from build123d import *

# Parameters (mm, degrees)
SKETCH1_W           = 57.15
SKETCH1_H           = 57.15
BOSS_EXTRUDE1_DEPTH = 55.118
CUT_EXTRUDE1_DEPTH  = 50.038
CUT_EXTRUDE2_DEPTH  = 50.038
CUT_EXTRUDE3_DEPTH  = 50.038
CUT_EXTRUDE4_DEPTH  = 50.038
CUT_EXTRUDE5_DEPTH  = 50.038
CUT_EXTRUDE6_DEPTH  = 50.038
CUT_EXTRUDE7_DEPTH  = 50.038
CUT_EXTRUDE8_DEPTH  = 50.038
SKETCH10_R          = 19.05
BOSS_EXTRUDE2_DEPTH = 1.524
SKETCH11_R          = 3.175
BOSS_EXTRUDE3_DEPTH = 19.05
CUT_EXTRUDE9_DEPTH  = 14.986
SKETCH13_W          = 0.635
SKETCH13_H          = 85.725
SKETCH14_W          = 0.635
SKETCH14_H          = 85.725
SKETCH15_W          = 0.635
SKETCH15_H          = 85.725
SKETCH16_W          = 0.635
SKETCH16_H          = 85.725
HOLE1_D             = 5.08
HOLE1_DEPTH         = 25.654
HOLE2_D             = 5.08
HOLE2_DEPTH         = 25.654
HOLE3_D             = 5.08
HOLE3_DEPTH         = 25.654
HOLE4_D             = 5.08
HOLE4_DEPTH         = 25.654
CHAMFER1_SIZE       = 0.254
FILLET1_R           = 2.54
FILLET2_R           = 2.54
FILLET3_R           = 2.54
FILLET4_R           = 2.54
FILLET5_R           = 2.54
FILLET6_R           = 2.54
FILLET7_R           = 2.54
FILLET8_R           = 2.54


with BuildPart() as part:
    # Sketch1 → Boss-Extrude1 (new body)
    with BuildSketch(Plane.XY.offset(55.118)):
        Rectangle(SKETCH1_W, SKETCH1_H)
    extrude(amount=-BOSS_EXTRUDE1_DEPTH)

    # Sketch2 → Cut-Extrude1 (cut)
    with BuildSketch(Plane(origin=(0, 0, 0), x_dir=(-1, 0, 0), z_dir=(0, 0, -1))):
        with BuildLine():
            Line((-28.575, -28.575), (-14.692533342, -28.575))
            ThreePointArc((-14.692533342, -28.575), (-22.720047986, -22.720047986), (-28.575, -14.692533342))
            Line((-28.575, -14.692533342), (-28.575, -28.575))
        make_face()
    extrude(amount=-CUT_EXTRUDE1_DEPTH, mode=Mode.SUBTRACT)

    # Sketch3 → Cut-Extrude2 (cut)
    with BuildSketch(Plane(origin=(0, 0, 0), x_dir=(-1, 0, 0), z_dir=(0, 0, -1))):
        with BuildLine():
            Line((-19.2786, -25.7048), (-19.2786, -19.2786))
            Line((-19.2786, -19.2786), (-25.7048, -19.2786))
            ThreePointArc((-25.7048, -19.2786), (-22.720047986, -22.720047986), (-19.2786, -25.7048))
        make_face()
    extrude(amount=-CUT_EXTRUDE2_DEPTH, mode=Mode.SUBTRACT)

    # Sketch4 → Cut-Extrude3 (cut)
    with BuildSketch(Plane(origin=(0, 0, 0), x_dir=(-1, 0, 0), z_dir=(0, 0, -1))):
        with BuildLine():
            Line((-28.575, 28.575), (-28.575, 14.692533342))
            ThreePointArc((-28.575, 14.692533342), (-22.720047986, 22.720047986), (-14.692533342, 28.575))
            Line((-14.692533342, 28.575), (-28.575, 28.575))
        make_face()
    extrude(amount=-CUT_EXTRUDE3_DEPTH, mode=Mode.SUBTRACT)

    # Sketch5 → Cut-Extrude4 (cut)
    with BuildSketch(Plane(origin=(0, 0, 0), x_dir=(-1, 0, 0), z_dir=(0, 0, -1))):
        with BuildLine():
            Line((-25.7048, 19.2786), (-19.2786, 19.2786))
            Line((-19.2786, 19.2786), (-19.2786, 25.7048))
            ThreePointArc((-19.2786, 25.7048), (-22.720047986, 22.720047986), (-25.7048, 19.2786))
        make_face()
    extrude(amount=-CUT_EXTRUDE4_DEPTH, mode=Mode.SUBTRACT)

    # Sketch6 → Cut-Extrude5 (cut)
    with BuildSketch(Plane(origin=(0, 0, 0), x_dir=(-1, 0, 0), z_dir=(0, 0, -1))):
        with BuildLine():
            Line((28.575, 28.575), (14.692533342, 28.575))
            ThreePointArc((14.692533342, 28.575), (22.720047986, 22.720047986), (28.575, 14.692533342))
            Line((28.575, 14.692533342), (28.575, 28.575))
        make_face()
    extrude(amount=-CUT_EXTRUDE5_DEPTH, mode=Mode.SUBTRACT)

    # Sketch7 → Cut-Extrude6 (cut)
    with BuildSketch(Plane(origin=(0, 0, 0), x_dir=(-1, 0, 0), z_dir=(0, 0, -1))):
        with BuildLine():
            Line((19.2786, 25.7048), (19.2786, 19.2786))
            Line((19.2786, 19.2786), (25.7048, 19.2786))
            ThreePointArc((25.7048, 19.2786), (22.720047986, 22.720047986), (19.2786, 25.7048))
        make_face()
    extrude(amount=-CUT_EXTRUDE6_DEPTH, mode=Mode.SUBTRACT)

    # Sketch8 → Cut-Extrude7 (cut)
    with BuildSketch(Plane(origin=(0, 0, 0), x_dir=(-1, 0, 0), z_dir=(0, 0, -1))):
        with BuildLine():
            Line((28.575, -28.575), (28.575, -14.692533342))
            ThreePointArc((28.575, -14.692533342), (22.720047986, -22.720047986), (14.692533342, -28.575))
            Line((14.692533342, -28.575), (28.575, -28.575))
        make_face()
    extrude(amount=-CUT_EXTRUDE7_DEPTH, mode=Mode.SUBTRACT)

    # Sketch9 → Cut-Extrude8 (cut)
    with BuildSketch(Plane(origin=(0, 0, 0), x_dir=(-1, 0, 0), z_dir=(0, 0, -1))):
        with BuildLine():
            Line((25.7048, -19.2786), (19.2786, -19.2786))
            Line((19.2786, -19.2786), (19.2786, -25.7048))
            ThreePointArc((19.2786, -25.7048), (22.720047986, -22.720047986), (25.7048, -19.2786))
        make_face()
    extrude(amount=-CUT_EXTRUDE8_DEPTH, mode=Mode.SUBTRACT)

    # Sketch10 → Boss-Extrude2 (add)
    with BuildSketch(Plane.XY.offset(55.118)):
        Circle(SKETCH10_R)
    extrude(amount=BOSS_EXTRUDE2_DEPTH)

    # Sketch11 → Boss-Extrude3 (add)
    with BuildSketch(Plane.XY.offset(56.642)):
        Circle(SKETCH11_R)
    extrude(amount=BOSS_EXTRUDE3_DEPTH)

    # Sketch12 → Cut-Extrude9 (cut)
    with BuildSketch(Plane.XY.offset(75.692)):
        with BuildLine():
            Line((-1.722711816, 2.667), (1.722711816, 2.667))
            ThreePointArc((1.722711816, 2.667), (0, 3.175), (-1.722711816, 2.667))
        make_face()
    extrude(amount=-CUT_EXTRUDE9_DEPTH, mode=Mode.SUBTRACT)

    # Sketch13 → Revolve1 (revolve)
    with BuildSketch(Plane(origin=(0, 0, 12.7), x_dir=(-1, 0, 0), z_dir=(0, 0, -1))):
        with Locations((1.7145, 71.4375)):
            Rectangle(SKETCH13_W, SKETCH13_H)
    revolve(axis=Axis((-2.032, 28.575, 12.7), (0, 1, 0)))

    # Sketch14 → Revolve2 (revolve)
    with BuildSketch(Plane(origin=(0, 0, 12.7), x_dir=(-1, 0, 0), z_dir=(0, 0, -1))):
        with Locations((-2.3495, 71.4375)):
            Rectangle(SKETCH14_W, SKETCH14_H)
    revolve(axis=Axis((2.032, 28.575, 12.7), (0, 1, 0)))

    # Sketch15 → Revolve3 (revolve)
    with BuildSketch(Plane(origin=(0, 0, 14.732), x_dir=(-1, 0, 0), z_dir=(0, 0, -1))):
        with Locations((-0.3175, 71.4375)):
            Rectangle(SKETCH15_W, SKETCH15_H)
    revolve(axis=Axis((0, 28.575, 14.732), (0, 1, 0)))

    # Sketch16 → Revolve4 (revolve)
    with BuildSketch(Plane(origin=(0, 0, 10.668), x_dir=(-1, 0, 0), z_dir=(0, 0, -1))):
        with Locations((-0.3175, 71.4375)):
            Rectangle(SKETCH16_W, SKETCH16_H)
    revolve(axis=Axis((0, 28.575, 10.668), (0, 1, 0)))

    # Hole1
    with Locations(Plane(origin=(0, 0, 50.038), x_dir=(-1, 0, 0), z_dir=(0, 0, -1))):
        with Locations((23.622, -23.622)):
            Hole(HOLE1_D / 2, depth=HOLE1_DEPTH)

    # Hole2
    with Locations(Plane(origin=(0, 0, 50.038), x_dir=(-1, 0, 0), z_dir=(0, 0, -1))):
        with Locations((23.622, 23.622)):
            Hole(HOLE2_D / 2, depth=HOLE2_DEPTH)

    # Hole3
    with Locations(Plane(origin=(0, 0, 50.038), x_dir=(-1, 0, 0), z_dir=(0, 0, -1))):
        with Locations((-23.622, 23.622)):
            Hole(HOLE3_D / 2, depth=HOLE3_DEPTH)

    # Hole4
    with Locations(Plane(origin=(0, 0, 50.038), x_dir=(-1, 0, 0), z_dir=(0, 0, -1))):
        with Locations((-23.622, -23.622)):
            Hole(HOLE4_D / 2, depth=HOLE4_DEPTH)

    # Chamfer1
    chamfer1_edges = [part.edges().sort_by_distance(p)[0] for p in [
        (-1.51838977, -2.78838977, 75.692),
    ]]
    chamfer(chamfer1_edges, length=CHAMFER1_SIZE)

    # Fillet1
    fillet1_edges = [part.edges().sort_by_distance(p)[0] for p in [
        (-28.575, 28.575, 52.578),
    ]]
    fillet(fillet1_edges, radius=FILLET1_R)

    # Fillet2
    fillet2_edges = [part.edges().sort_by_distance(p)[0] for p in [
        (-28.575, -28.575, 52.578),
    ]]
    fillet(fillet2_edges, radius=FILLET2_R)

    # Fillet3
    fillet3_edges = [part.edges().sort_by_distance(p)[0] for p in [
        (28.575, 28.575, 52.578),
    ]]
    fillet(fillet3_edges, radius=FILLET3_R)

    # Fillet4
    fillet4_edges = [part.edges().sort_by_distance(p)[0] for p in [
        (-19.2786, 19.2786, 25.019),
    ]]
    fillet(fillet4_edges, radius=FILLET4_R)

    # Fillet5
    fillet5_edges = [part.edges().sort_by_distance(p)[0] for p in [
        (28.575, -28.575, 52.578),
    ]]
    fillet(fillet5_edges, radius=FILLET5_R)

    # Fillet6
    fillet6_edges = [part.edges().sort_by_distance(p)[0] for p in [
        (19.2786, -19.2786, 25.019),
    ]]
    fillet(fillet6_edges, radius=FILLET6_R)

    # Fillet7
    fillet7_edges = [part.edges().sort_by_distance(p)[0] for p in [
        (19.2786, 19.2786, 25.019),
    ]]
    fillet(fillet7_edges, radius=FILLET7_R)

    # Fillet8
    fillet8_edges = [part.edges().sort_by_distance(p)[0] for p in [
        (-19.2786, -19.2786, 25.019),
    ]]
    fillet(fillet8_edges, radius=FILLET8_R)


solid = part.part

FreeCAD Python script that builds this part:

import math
import FreeCAD as App
import Part
import Sketcher
Q = App.Units.Quantity


def edges_at(feature, points):
    """Names of the edges that pass closest to the given points."""
    edges = feature.Shape.Edges
    near = lambda p: min(range(len(edges)), key=lambda i: edges[i].distToShape(Part.Vertex(*p))[0])
    return sorted({f"Edge{near(p) + 1}" for p in points})


def add_polygon(sketch, points):
    """Adds a closed chain of lines whose ends are joined by coincident constraints."""
    first, n = sketch.GeometryCount, len(points)
    for a, b in zip(points, points[1:] + points[:1]):
        sketch.addGeometry(Part.LineSegment(App.Vector(*a, 0), App.Vector(*b, 0)), False)
    for i in range(n):
        sketch.addConstraint(Sketcher.Constraint("Coincident", first + i, 2, first + (i + 1) % n, 1))

doc = App.newDocument("Part")
body = doc.addObject("PartDesign::Body", "Body")

# Sketch on XY plane
sketch1 = doc.addObject("Sketcher::SketchObject", "Sketch")
body.addObject(sketch1)
sketch1.AttachmentSupport = (doc.XY_Plane, [""])
sketch1.MapMode = "FlatFace"
sketch1.AttachmentOffset = App.Placement(App.Vector(0, 0, 2.17 * 25.4), App.Rotation())
add_polygon(sketch1, [(-29, 29), (-29, -29), (29, -29), (29, 29)])  # lines 0-3
sketch1.addConstraint([
    Sketcher.Constraint("Vertical", 0),
    Sketcher.Constraint("Horizontal", 1),
    Sketcher.Constraint("Vertical", 2),
    Sketcher.Constraint("Horizontal", 3),
    Sketcher.Constraint("Symmetric", 0, 2, 2, 2, -1, 1),
    Sketcher.Constraint("Equal", 3, 0),
    Sketcher.Constraint("DistanceX", 1, 1, 1, 2, Q("2.25 in")),
])
pad1 = doc.addObject("PartDesign::Pad", "Pad")
body.addObject(pad1)
pad1.Profile = sketch1
pad1.Length = Q("2.17 in")
pad1.Reversed = True

# Sketch on XY plane
sketch2 = doc.addObject("Sketcher::SketchObject", "Sketch001")
body.addObject(sketch2)
sketch2.AttachmentSupport = (doc.XY_Plane, [""])
sketch2.MapMode = "FlatFace"
sketch2.addGeometry([
    Part.LineSegment(App.Vector(29, -29, 0), App.Vector(15, -29, 0)),
    Part.ArcOfCircle(Part.Circle(App.Vector(0, 0, 0), App.Vector(0, 0, 1), 32), math.radians(-63), math.radians(-27)),
    Part.LineSegment(App.Vector(29, -15, 0), App.Vector(29, -29, 0)),
], False)
sketch2.addConstraint([
    Sketcher.Constraint("Coincident", 0, 2, 1, 1),
    Sketcher.Constraint("Coincident", 1, 2, 2, 1),
    Sketcher.Constraint("Coincident", 2, 2, 0, 1),
    Sketcher.Constraint("Horizontal", 0),
    Sketcher.Constraint("Vertical", 2),
    Sketcher.Constraint("Coincident", 1, 3, -1, 1),
    Sketcher.Constraint("Equal", 0, 2),
    Sketcher.Constraint("Radius", 1, Q("1.265 in")),
    Sketcher.Constraint("DistanceY", 0, 2, -1, 1, Q("1.125 in")),
])
pocket1 = doc.addObject("PartDesign::Pocket", "Pocket")
body.addObject(pocket1)
pocket1.Profile = sketch2
pocket1.Length = Q("1.97 in")
pocket1.Reversed = True

# Sketch on XY plane
sketch3 = doc.addObject("Sketcher::SketchObject", "Sketch002")
body.addObject(sketch3)
sketch3.AttachmentSupport = (doc.XY_Plane, [""])
sketch3.MapMode = "FlatFace"
sketch3.addGeometry([
    Part.LineSegment(App.Vector(19, -26, 0), App.Vector(19, -19, 0)),
    Part.LineSegment(App.Vector(19, -19, 0), App.Vector(26, -19, 0)),
    Part.ArcOfCircle(Part.Circle(App.Vector(0, 0, 0), App.Vector(0, 0, 1), 32), math.radians(-53.13), math.radians(-36.87)),
], False)
sketch3.addConstraint([
    Sketcher.Constraint("Coincident", 0, 2, 1, 1),
    Sketcher.Constraint("Coincident", 1, 2, 2, 2),
    Sketcher.Constraint("Coincident", 2, 1, 0, 1),
    Sketcher.Constraint("Vertical", 0),
    Sketcher.Constraint("Horizontal", 1),
    Sketcher.Constraint("Coincident", 2, 3, -1, 1),
    Sketcher.Constraint("Equal", 1, 0),
    Sketcher.Constraint("Radius", 2, Q("1.265 in")),
    Sketcher.Constraint("DistanceX", 1, 1, 1, 2, Q("0.253 in")),
])
pocket2 = doc.addObject("PartDesign::Pocket", "Pocket001")
body.addObject(pocket2)
pocket2.Profile = sketch3
pocket2.Length = Q("1.97 in")
pocket2.Reversed = True

# Sketch on XY plane
sketch4 = doc.addObject("Sketcher::SketchObject", "Sketch003")
body.addObject(sketch4)
sketch4.AttachmentSupport = (doc.XY_Plane, [""])
sketch4.MapMode = "FlatFace"
sketch4.addGeometry([
    Part.LineSegment(App.Vector(29, 29, 0), App.Vector(29, 15, 0)),
    Part.ArcOfCircle(Part.Circle(App.Vector(0, 0, 0), App.Vector(0, 0, 1), 32), math.radians(27), math.radians(63)),
    Part.LineSegment(App.Vector(15, 29, 0), App.Vector(29, 29, 0)),
], False)
sketch4.addConstraint([
    Sketcher.Constraint("Coincident", 0, 2, 1, 1),
    Sketcher.Constraint("Coincident", 1, 2, 2, 1),
    Sketcher.Constraint("Coincident", 2, 2, 0, 1),
    Sketcher.Constraint("Vertical", 0),
    Sketcher.Constraint("Horizontal", 2),
    Sketcher.Constraint("Coincident", 1, 3, -1, 1),
    Sketcher.Constraint("Equal", 2, 0),
    Sketcher.Constraint("Radius", 1, Q("1.265 in")),
    Sketcher.Constraint("DistanceX", -1, 1, 0, 2, Q("1.125 in")),
])
pocket3 = doc.addObject("PartDesign::Pocket", "Pocket002")
body.addObject(pocket3)
pocket3.Profile = sketch4
pocket3.Length = Q("1.97 in")
pocket3.Reversed = True

# Sketch on XY plane
sketch5 = doc.addObject("Sketcher::SketchObject", "Sketch004")
body.addObject(sketch5)
sketch5.AttachmentSupport = (doc.XY_Plane, [""])
sketch5.MapMode = "FlatFace"
sketch5.addGeometry([
    Part.LineSegment(App.Vector(26, 19, 0), App.Vector(19, 19, 0)),
    Part.LineSegment(App.Vector(19, 19, 0), App.Vector(19, 26, 0)),
    Part.ArcOfCircle(Part.Circle(App.Vector(0, 0, 0), App.Vector(0, 0, 1), 32), math.radians(36.87), math.radians(53.13)),
], False)
sketch5.addConstraint([
    Sketcher.Constraint("Coincident", 0, 2, 1, 1),
    Sketcher.Constraint("Coincident", 1, 2, 2, 2),
    Sketcher.Constraint("Coincident", 2, 1, 0, 1),
    Sketcher.Constraint("Horizontal", 0),
    Sketcher.Constraint("Vertical", 1),
    Sketcher.Constraint("Coincident", 2, 3, -1, 1),
    Sketcher.Constraint("Equal", 0, 1),
    Sketcher.Constraint("Radius", 2, Q("1.265 in")),
    Sketcher.Constraint("DistanceX", 0, 2, 0, 1, Q("0.253 in")),
])
pocket4 = doc.addObject("PartDesign::Pocket", "Pocket003")
body.addObject(pocket4)
pocket4.Profile = sketch5
pocket4.Length = Q("1.97 in")
pocket4.Reversed = True

# Sketch on XY plane
sketch6 = doc.addObject("Sketcher::SketchObject", "Sketch005")
body.addObject(sketch6)
sketch6.AttachmentSupport = (doc.XY_Plane, [""])
sketch6.MapMode = "FlatFace"
sketch6.addGeometry([
    Part.LineSegment(App.Vector(-29, 29, 0), App.Vector(-15, 29, 0)),
    Part.ArcOfCircle(Part.Circle(App.Vector(0, 0, 0), App.Vector(0, 0, 1), 32), math.radians(117), math.radians(153)),
    Part.LineSegment(App.Vector(-29, 15, 0), App.Vector(-29, 29, 0)),
], False)
sketch6.addConstraint([
    Sketcher.Constraint("Coincident", 0, 2, 1, 1),
    Sketcher.Constraint("Coincident", 1, 2, 2, 1),
    Sketcher.Constraint("Coincident", 2, 2, 0, 1),
    Sketcher.Constraint("Horizontal", 0),
    Sketcher.Constraint("Vertical", 2),
    Sketcher.Constraint("Coincident", 1, 3, -1, 1),
    Sketcher.Constraint("Equal", 0, 2),
    Sketcher.Constraint("Radius", 1, Q("1.265 in")),
    Sketcher.Constraint("DistanceY", -1, 1, 0, 2, Q("1.125 in")),
])
pocket5 = doc.addObject("PartDesign::Pocket", "Pocket004")
body.addObject(pocket5)
pocket5.Profile = sketch6
pocket5.Length = Q("1.97 in")
pocket5.Reversed = True

# Sketch on XY plane
sketch7 = doc.addObject("Sketcher::SketchObject", "Sketch006")
body.addObject(sketch7)
sketch7.AttachmentSupport = (doc.XY_Plane, [""])
sketch7.MapMode = "FlatFace"
sketch7.addGeometry([
    Part.LineSegment(App.Vector(-19, 26, 0), App.Vector(-19, 19, 0)),
    Part.LineSegment(App.Vector(-19, 19, 0), App.Vector(-26, 19, 0)),
    Part.ArcOfCircle(Part.Circle(App.Vector(0, 0, 0), App.Vector(0, 0, 1), 32), math.radians(126.87), math.radians(143.13)),
], False)
sketch7.addConstraint([
    Sketcher.Constraint("Coincident", 0, 2, 1, 1),
    Sketcher.Constraint("Coincident", 1, 2, 2, 2),
    Sketcher.Constraint("Coincident", 2, 1, 0, 1),
    Sketcher.Constraint("Vertical", 0),
    Sketcher.Constraint("Horizontal", 1),
    Sketcher.Constraint("Coincident", 2, 3, -1, 1),
    Sketcher.Constraint("Equal", 1, 0),
    Sketcher.Constraint("Radius", 2, Q("1.265 in")),
    Sketcher.Constraint("DistanceX", 1, 2, 1, 1, Q("0.253 in")),
])
pocket6 = doc.addObject("PartDesign::Pocket", "Pocket005")
body.addObject(pocket6)
pocket6.Profile = sketch7
pocket6.Length = Q("1.97 in")
pocket6.Reversed = True

# Sketch on XY plane
sketch8 = doc.addObject("Sketcher::SketchObject", "Sketch007")
body.addObject(sketch8)
sketch8.AttachmentSupport = (doc.XY_Plane, [""])
sketch8.MapMode = "FlatFace"
sketch8.addGeometry([
    Part.LineSegment(App.Vector(-29, -29, 0), App.Vector(-29, -15, 0)),
    Part.ArcOfCircle(Part.Circle(App.Vector(0, 0, 0), App.Vector(0, 0, 1), 32), math.radians(-153), math.radians(-117)),
    Part.LineSegment(App.Vector(-15, -29, 0), App.Vector(-29, -29, 0)),
], False)
sketch8.addConstraint([
    Sketcher.Constraint("Coincident", 0, 2, 1, 1),
    Sketcher.Constraint("Coincident", 1, 2, 2, 1),
    Sketcher.Constraint("Coincident", 2, 2, 0, 1),
    Sketcher.Constraint("Vertical", 0),
    Sketcher.Constraint("Horizontal", 2),
    Sketcher.Constraint("Coincident", 1, 3, -1, 1),
    Sketcher.Constraint("Equal", 2, 0),
    Sketcher.Constraint("Radius", 1, Q("1.265 in")),
    Sketcher.Constraint("DistanceX", 0, 2, -1, 1, Q("1.125 in")),
])
pocket7 = doc.addObject("PartDesign::Pocket", "Pocket006")
body.addObject(pocket7)
pocket7.Profile = sketch8
pocket7.Length = Q("1.97 in")
pocket7.Reversed = True

# Sketch on XY plane
sketch9 = doc.addObject("Sketcher::SketchObject", "Sketch008")
body.addObject(sketch9)
sketch9.AttachmentSupport = (doc.XY_Plane, [""])
sketch9.MapMode = "FlatFace"
sketch9.addGeometry([
    Part.LineSegment(App.Vector(-26, -19, 0), App.Vector(-19, -19, 0)),
    Part.LineSegment(App.Vector(-19, -19, 0), App.Vector(-19, -26, 0)),
    Part.ArcOfCircle(Part.Circle(App.Vector(0, 0, 0), App.Vector(0, 0, 1), 32), math.radians(-143.13), math.radians(-126.87)),
], False)
sketch9.addConstraint([
    Sketcher.Constraint("Coincident", 0, 2, 1, 1),
    Sketcher.Constraint("Coincident", 1, 2, 2, 2),
    Sketcher.Constraint("Coincident", 2, 1, 0, 1),
    Sketcher.Constraint("Horizontal", 0),
    Sketcher.Constraint("Vertical", 1),
    Sketcher.Constraint("Coincident", 2, 3, -1, 1),
    Sketcher.Constraint("Equal", 0, 1),
    Sketcher.Constraint("Radius", 2, Q("1.265 in")),
    Sketcher.Constraint("DistanceX", 0, 1, 0, 2, Q("0.253 in")),
])
pocket8 = doc.addObject("PartDesign::Pocket", "Pocket007")
body.addObject(pocket8)
pocket8.Profile = sketch9
pocket8.Length = Q("1.97 in")
pocket8.Reversed = True

# Sketch on XY plane
sketch10 = doc.addObject("Sketcher::SketchObject", "Sketch009")
body.addObject(sketch10)
sketch10.AttachmentSupport = (doc.XY_Plane, [""])
sketch10.MapMode = "FlatFace"
sketch10.AttachmentOffset = App.Placement(App.Vector(0, 0, 2.17 * 25.4), App.Rotation())
sketch10.addGeometry(Part.Circle(App.Vector(0, 0, 0), App.Vector(0, 0, 1), 19), False)
sketch10.addConstraint([
    Sketcher.Constraint("Coincident", 0, 3, -1, 1),
    Sketcher.Constraint("Diameter", 0, Q("1.5 in")),
])
pad2 = doc.addObject("PartDesign::Pad", "Pad001")
body.addObject(pad2)
pad2.Profile = sketch10
pad2.Length = Q("0.06 in")

# Sketch on XY plane
sketch11 = doc.addObject("Sketcher::SketchObject", "Sketch010")
body.addObject(sketch11)
sketch11.AttachmentSupport = (doc.XY_Plane, [""])
sketch11.MapMode = "FlatFace"
sketch11.AttachmentOffset = App.Placement(App.Vector(0, 0, 2.23 * 25.4), App.Rotation())
sketch11.addGeometry(Part.Circle(App.Vector(0, 0, 0), App.Vector(0, 0, 1), 3.2), False)
sketch11.addConstraint([
    Sketcher.Constraint("Coincident", 0, 3, -1, 1),
    Sketcher.Constraint("Diameter", 0, Q("0.25 in")),
])
pad3 = doc.addObject("PartDesign::Pad", "Pad002")
body.addObject(pad3)
pad3.Profile = sketch11
pad3.Length = Q("0.75 in")

# Sketch on XY plane
sketch12 = doc.addObject("Sketcher::SketchObject", "Sketch011")
body.addObject(sketch12)
sketch12.AttachmentSupport = (doc.XY_Plane, [""])
sketch12.MapMode = "FlatFace"
sketch12.AttachmentOffset = App.Placement(App.Vector(0, 0, 2.98 * 25.4), App.Rotation())
sketch12.addGeometry([
    Part.LineSegment(App.Vector(-1.7, 2.7, 0), App.Vector(1.7, 2.7, 0)),
    Part.ArcOfCircle(Part.Circle(App.Vector(0, 0, 0), App.Vector(0, 0, 1), 3.2), math.radians(57), math.radians(123)),
], False)
sketch12.addConstraint([
    Sketcher.Constraint("Coincident", 0, 1, 1, 2),
    Sketcher.Constraint("Coincident", 1, 1, 0, 2),
    Sketcher.Constraint("Horizontal", 0),
    Sketcher.Constraint("Coincident", 1, 3, -1, 1),
    Sketcher.Constraint("Radius", 1, Q("0.125 in")),
    Sketcher.Constraint("DistanceY", -1, 1, 0, 1, Q("0.105 in")),
])
pocket9 = doc.addObject("PartDesign::Pocket", "Pocket008")
body.addObject(pocket9)
pocket9.Profile = sketch12
pocket9.Length = Q("0.59 in")

# Sketch on XY plane
sketch13 = doc.addObject("Sketcher::SketchObject", "Sketch012")
body.addObject(sketch13)
sketch13.AttachmentSupport = (doc.XY_Plane, [""])
sketch13.MapMode = "FlatFace"
sketch13.AttachmentOffset = App.Placement(App.Vector(0, 0, 0.5 * 25.4), App.Rotation())
add_polygon(sketch13, [(-1.4, 114.3), (-1.4, 28.6), (-2, 28.6), (-2, 114.3)])  # lines 0-3
sketch13.addGeometry(Part.LineSegment(App.Vector(-2, 28.6, 0), App.Vector(-2, 114.3, 0)), True)  # axis
sketch13.addConstraint([
    Sketcher.Constraint("Vertical", 0),
    Sketcher.Constraint("Horizontal", 1),
    Sketcher.Constraint("Vertical", 2),
    Sketcher.Constraint("Horizontal", 3),
    Sketcher.Constraint("Vertical", 4),
    Sketcher.Constraint("Coincident", 4, 1, 1, 2),
    Sketcher.Constraint("Horizontal", 3, 2, 4, 2),
    Sketcher.Constraint("DistanceY", -1, 1, 2, 2, Q("4.5 in")),
    Sketcher.Constraint("DistanceX", 1, 2, 1, 1, Q("0.025 in")),
    Sketcher.Constraint("DistanceY", 0, 2, 0, 1, Q("3.375 in")),
    Sketcher.Constraint("DistanceX", 1, 2, -1, 1, Q("0.08 in")),
])
revolution = doc.addObject("PartDesign::Revolution", "Revolution")
body.addObject(revolution)
revolution.Profile = sketch13
revolution.ReferenceAxis = (sketch13, ["Axis0"])
revolution.Angle = 360

# Sketch on XY plane
sketch14 = doc.addObject("Sketcher::SketchObject", "Sketch013")
body.addObject(sketch14)
sketch14.AttachmentSupport = (doc.XY_Plane, [""])
sketch14.MapMode = "FlatFace"
sketch14.AttachmentOffset = App.Placement(App.Vector(0, 0, 0.5 * 25.4), App.Rotation())
add_polygon(sketch14, [(2.7, 114.3), (2.7, 28.6), (2, 28.6), (2, 114.3)])  # lines 0-3
sketch14.addGeometry(Part.LineSegment(App.Vector(2, 28.6, 0), App.Vector(2, 114.3, 0)), True)  # axis
sketch14.addConstraint([
    Sketcher.Constraint("Vertical", 0),
    Sketcher.Constraint("Horizontal", 1),
    Sketcher.Constraint("Vertical", 2),
    Sketcher.Constraint("Horizontal", 3),
    Sketcher.Constraint("Vertical", 4),
    Sketcher.Constraint("Coincident", 4, 1, 1, 2),
    Sketcher.Constraint("Horizontal", 3, 2, 4, 2),
    Sketcher.Constraint("DistanceY", -1, 1, 2, 2, Q("4.5 in")),
    Sketcher.Constraint("DistanceX", 1, 2, 1, 1, Q("0.025 in")),
    Sketcher.Constraint("DistanceY", 0, 2, 0, 1, Q("3.375 in")),
    Sketcher.Constraint("DistanceX", -1, 1, 1, 2, Q("0.08 in")),
])
revolution2 = doc.addObject("PartDesign::Revolution", "Revolution001")
body.addObject(revolution2)
revolution2.Profile = sketch14
revolution2.ReferenceAxis = (sketch14, ["Axis0"])
revolution2.Angle = 360

# Sketch on XY plane
sketch15 = doc.addObject("Sketcher::SketchObject", "Sketch014")
body.addObject(sketch15)
sketch15.AttachmentSupport = (doc.XY_Plane, [""])
sketch15.MapMode = "FlatFace"
sketch15.AttachmentOffset = App.Placement(App.Vector(0, 0, 0.58 * 25.4), App.Rotation())
add_polygon(sketch15, [(0.6, 114.3), (0.6, 28.6), (0, 28.6), (0, 114.3)])  # lines 0-3
sketch15.addConstraint([
    Sketcher.Constraint("Vertical", 0),
    Sketcher.Constraint("Horizontal", 1),
    Sketcher.Constraint("Vertical", 2),
    Sketcher.Constraint("Horizontal", 3),
    Sketcher.Constraint("PointOnObject", 1, 2, -2),
    Sketcher.Constraint("DistanceY", -1, 1, 2, 2, Q("4.5 in")),
    Sketcher.Constraint("DistanceX", 1, 2, 1, 1, Q("0.025 in")),
    Sketcher.Constraint("DistanceY", 0, 2, 0, 1, Q("3.375 in")),
])
revolution3 = doc.addObject("PartDesign::Revolution", "Revolution002")
body.addObject(revolution3)
revolution3.Profile = sketch15
revolution3.ReferenceAxis = (sketch15, ["V_Axis"])
revolution3.Angle = 360

# Sketch on XY plane
sketch16 = doc.addObject("Sketcher::SketchObject", "Sketch015")
body.addObject(sketch16)
sketch16.AttachmentSupport = (doc.XY_Plane, [""])
sketch16.MapMode = "FlatFace"
sketch16.AttachmentOffset = App.Placement(App.Vector(0, 0, 0.42 * 25.4), App.Rotation())
add_polygon(sketch16, [(0.6, 114.3), (0.6, 28.6), (0, 28.6), (0, 114.3)])  # lines 0-3
sketch16.addConstraint([
    Sketcher.Constraint("Vertical", 0),
    Sketcher.Constraint("Horizontal", 1),
    Sketcher.Constraint("Vertical", 2),
    Sketcher.Constraint("Horizontal", 3),
    Sketcher.Constraint("PointOnObject", 1, 2, -2),
    Sketcher.Constraint("DistanceY", -1, 1, 2, 2, Q("4.5 in")),
    Sketcher.Constraint("DistanceX", 1, 2, 1, 1, Q("0.025 in")),
    Sketcher.Constraint("DistanceY", 0, 2, 0, 1, Q("3.375 in")),
])
revolution4 = doc.addObject("PartDesign::Revolution", "Revolution003")
body.addObject(revolution4)
revolution4.Profile = sketch16
revolution4.ReferenceAxis = (sketch16, ["V_Axis"])
revolution4.Angle = 360

# Sketch on XY plane
sketch17 = doc.addObject("Sketcher::SketchObject", "Sketch016")
body.addObject(sketch17)
sketch17.AttachmentSupport = (doc.XY_Plane, [""])
sketch17.MapMode = "FlatFace"
sketch17.AttachmentOffset = App.Placement(App.Vector(0, 0, 1.97 * 25.4), App.Rotation())
sketch17.addGeometry(Part.Circle(App.Vector(-23.6, -23.6, 0), App.Vector(0, 0, 1), 2.5), False)
sketch17.addConstraint([
    Sketcher.Constraint("Diameter", 0, Q("0.2 in")),
    Sketcher.Constraint("DistanceX", 0, 3, -1, 1, Q("0.93 in")),
    Sketcher.Constraint("DistanceY", 0, 3, -1, 1, Q("0.93 in")),
])
doc.recompute()
hole = doc.addObject("PartDesign::Hole", "Hole")
body.addObject(hole)
hole.Profile = sketch17
hole.ThreadType = "None"
hole.Diameter = Q("0.2 in")
hole.DepthType = "Dimension"
hole.Depth = Q("1.01 in")
hole.DrillPoint = "Flat"
hole.Reversed = True

# Sketch on XY plane
sketch18 = doc.addObject("Sketcher::SketchObject", "Sketch017")
body.addObject(sketch18)
sketch18.AttachmentSupport = (doc.XY_Plane, [""])
sketch18.MapMode = "FlatFace"
sketch18.AttachmentOffset = App.Placement(App.Vector(0, 0, 1.97 * 25.4), App.Rotation())
sketch18.addGeometry(Part.Circle(App.Vector(-23.6, 23.6, 0), App.Vector(0, 0, 1), 2.5), False)
sketch18.addConstraint([
    Sketcher.Constraint("Diameter", 0, Q("0.2 in")),
    Sketcher.Constraint("DistanceX", 0, 3, -1, 1, Q("0.93 in")),
    Sketcher.Constraint("DistanceY", -1, 1, 0, 3, Q("0.93 in")),
])
doc.recompute()
hole2 = doc.addObject("PartDesign::Hole", "Hole001")
body.addObject(hole2)
hole2.Profile = sketch18
hole2.ThreadType = "None"
hole2.Diameter = Q("0.2 in")
hole2.DepthType = "Dimension"
hole2.Depth = Q("1.01 in")
hole2.DrillPoint = "Flat"
hole2.Reversed = True

# Sketch on XY plane
sketch19 = doc.addObject("Sketcher::SketchObject", "Sketch018")
body.addObject(sketch19)
sketch19.AttachmentSupport = (doc.XY_Plane, [""])
sketch19.MapMode = "FlatFace"
sketch19.AttachmentOffset = App.Placement(App.Vector(0, 0, 1.97 * 25.4), App.Rotation())
sketch19.addGeometry(Part.Circle(App.Vector(23.6, 23.6, 0), App.Vector(0, 0, 1), 2.5), False)
sketch19.addConstraint([
    Sketcher.Constraint("Diameter", 0, Q("0.2 in")),
    Sketcher.Constraint("DistanceX", -1, 1, 0, 3, Q("0.93 in")),
    Sketcher.Constraint("DistanceY", -1, 1, 0, 3, Q("0.93 in")),
])
doc.recompute()
hole3 = doc.addObject("PartDesign::Hole", "Hole002")
body.addObject(hole3)
hole3.Profile = sketch19
hole3.ThreadType = "None"
hole3.Diameter = Q("0.2 in")
hole3.DepthType = "Dimension"
hole3.Depth = Q("1.01 in")
hole3.DrillPoint = "Flat"
hole3.Reversed = True

# Sketch on XY plane
sketch20 = doc.addObject("Sketcher::SketchObject", "Sketch019")
body.addObject(sketch20)
sketch20.AttachmentSupport = (doc.XY_Plane, [""])
sketch20.MapMode = "FlatFace"
sketch20.AttachmentOffset = App.Placement(App.Vector(0, 0, 1.97 * 25.4), App.Rotation())
sketch20.addGeometry(Part.Circle(App.Vector(23.6, -23.6, 0), App.Vector(0, 0, 1), 2.5), False)
sketch20.addConstraint([
    Sketcher.Constraint("Diameter", 0, Q("0.2 in")),
    Sketcher.Constraint("DistanceX", -1, 1, 0, 3, Q("0.93 in")),
    Sketcher.Constraint("DistanceY", 0, 3, -1, 1, Q("0.93 in")),
])
doc.recompute()
hole4 = doc.addObject("PartDesign::Hole", "Hole003")
body.addObject(hole4)
hole4.Profile = sketch20
hole4.ThreadType = "None"
hole4.Diameter = Q("0.2 in")
hole4.DepthType = "Dimension"
hole4.Depth = Q("1.01 in")
hole4.DrillPoint = "Flat"
hole4.Reversed = True
doc.recompute()

chamfer = doc.addObject("PartDesign::Chamfer", "Chamfer")
body.addObject(chamfer)
chamfer.Base = (hole4, edges_at(hole4, [(-1.518, -2.788, 75.692)]))
chamfer.Size = Q("0.01 in")
doc.recompute()

fillet = doc.addObject("PartDesign::Fillet", "Fillet")
body.addObject(fillet)
fillet.Base = (chamfer, edges_at(chamfer, [(-28.575, 28.575, 52.578)]))
fillet.Radius = Q("0.1 in")
doc.recompute()

fillet2 = doc.addObject("PartDesign::Fillet", "Fillet001")
body.addObject(fillet2)
fillet2.Base = (fillet, edges_at(fillet, [(-28.575, -28.575, 52.578)]))
fillet2.Radius = Q("0.1 in")
doc.recompute()

fillet3 = doc.addObject("PartDesign::Fillet", "Fillet002")
body.addObject(fillet3)
fillet3.Base = (fillet2, edges_at(fillet2, [(28.575, 28.575, 52.578)]))
fillet3.Radius = Q("0.1 in")
doc.recompute()

fillet4 = doc.addObject("PartDesign::Fillet", "Fillet003")
body.addObject(fillet4)
fillet4.Base = (fillet3, edges_at(fillet3, [(-19.279, 19.279, 25.019)]))
fillet4.Radius = Q("0.1 in")
doc.recompute()

fillet5 = doc.addObject("PartDesign::Fillet", "Fillet004")
body.addObject(fillet5)
fillet5.Base = (fillet4, edges_at(fillet4, [(28.575, -28.575, 52.578)]))
fillet5.Radius = Q("0.1 in")
doc.recompute()

fillet6 = doc.addObject("PartDesign::Fillet", "Fillet005")
body.addObject(fillet6)
fillet6.Base = (fillet5, edges_at(fillet5, [(19.279, -19.279, 25.019)]))
fillet6.Radius = Q("0.1 in")
doc.recompute()

fillet7 = doc.addObject("PartDesign::Fillet", "Fillet006")
body.addObject(fillet7)
fillet7.Base = (fillet6, edges_at(fillet6, [(19.279, 19.279, 25.019)]))
fillet7.Radius = Q("0.1 in")
doc.recompute()

fillet8 = doc.addObject("PartDesign::Fillet", "Fillet007")
body.addObject(fillet8)
fillet8.Base = (fillet7, edges_at(fillet7, [(-19.279, -19.279, 25.019)]))
fillet8.Radius = Q("0.1 in")

doc.recompute()
